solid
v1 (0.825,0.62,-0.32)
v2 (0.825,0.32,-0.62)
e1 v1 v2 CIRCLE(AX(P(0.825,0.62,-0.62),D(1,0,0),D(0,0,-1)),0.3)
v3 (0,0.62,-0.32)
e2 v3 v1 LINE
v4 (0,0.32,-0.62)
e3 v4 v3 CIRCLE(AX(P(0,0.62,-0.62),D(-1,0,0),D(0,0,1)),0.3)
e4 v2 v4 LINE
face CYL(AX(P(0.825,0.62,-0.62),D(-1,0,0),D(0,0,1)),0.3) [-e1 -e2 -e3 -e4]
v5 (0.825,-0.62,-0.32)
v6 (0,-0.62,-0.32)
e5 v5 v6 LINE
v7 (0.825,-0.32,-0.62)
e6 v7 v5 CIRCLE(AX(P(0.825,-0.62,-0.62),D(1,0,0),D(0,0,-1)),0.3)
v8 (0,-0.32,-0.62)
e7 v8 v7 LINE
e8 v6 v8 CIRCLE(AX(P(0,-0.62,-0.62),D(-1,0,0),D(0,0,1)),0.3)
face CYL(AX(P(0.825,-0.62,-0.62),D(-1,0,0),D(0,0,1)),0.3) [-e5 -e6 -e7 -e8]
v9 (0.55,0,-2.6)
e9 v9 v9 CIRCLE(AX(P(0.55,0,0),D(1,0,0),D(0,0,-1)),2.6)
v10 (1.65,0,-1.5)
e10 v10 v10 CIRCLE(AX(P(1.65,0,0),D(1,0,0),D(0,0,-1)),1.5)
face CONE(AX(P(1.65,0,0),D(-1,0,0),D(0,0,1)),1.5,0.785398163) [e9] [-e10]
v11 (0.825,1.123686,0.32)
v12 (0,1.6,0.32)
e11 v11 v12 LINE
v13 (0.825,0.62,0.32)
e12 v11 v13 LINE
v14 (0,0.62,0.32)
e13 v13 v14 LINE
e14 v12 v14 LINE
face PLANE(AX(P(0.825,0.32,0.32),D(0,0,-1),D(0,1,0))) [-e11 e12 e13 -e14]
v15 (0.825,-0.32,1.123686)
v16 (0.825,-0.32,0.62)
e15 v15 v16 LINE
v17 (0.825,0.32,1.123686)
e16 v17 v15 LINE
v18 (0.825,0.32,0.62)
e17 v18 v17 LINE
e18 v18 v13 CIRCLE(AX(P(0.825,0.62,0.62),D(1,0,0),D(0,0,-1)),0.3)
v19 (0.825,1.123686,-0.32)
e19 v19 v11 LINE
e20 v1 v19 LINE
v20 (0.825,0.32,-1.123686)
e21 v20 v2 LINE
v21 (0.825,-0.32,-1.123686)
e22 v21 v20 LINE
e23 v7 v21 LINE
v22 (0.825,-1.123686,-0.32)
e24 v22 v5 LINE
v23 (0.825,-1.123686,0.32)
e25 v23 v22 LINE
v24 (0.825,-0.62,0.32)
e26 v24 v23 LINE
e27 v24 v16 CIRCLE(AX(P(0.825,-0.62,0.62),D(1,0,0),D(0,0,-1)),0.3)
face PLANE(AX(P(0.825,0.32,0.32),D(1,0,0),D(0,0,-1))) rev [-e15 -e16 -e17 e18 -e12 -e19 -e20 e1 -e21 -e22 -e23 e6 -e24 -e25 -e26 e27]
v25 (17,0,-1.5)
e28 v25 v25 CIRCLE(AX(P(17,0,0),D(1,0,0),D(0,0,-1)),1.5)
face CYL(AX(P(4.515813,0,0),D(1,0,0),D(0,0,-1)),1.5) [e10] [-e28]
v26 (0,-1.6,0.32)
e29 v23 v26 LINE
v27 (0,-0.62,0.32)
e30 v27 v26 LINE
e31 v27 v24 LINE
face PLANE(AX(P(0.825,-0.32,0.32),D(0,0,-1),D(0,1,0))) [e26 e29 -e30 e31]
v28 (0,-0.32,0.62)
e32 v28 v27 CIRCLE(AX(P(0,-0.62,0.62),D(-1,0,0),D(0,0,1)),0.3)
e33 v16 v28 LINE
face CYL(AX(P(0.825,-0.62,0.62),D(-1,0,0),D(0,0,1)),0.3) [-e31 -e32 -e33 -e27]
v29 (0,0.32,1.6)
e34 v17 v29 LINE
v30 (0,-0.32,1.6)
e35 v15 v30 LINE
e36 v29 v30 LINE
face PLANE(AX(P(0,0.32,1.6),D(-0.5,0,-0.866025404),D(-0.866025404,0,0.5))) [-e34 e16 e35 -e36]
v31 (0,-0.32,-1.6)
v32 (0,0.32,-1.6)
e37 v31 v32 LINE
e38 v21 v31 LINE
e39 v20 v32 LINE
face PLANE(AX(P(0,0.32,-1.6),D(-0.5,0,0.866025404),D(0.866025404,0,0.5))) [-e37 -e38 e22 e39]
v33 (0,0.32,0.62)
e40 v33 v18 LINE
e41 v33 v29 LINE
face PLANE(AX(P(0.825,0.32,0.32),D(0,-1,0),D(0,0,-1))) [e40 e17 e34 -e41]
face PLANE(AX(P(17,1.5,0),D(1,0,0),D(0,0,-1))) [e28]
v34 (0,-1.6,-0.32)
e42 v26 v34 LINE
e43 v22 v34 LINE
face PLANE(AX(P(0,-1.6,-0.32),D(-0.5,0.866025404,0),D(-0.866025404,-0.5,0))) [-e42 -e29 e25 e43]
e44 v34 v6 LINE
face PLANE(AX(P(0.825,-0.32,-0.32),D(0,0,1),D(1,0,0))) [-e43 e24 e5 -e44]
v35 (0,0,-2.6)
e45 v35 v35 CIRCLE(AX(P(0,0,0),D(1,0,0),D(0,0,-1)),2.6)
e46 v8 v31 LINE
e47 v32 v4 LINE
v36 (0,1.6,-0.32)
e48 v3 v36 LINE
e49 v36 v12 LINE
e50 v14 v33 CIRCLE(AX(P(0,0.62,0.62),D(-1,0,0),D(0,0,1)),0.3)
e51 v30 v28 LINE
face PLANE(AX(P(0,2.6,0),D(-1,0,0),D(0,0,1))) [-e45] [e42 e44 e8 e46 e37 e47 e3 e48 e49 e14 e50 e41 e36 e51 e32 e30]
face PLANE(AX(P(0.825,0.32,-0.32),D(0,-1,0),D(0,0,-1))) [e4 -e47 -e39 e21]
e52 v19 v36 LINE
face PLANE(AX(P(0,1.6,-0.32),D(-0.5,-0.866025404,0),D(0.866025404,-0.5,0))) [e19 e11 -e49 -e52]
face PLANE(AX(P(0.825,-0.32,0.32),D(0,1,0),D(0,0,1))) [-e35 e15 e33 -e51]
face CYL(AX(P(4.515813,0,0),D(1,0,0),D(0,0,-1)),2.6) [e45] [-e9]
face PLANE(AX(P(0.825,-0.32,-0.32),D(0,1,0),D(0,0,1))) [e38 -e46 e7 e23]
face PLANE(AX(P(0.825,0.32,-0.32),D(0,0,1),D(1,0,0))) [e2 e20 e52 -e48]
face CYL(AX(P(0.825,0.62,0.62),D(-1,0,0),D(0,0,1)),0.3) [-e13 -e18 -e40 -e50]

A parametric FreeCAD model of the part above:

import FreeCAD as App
import Part
import Sketcher

V = App.Vector
Q = App.Units.Quantity


def edges_at(feature, points):
    """Names of the edges that pass closest to the given points."""
    edges = feature.Shape.Edges
    near = lambda p: min(range(len(edges)), key=lambda i: edges[i].distToShape(Part.Vertex(*p))[0])
    return sorted({f"Edge{near(p) + 1}" for p in points})


def faces_at(feature, points):
    """Names of the faces that lie closest to the given points."""
    faces = feature.Shape.Faces
    near = lambda p: min(range(len(faces)), key=lambda i: faces[i].distToShape(Part.Vertex(*p))[0])
    return sorted({f"Face{near(p) + 1}" for p in points})


def add_polygon(sketch, points):
    """Adds a closed chain of lines whose ends are joined by coincident constraints."""
    first, n = sketch.GeometryCount, len(points)
    for a, b in zip(points, points[1:] + points[:1]):
        sketch.addGeometry(Part.LineSegment(App.Vector(*a, 0), App.Vector(*b, 0)), False)
    for i in range(n):
        sketch.addConstraint(Sketcher.Constraint("Coincident", first + i, 2, first + (i + 1) % n, 1))

doc = App.newDocument("Part")
body = doc.addObject("PartDesign::Body", "Body")

# Sketch on XY plane
sketch1 = doc.addObject("Sketcher::SketchObject", "Sketch")
body.addObject(sketch1)
sketch1.AttachmentSupport = (doc.XY_Plane, [""])
sketch1.MapMode = "FlatFace"
add_polygon(sketch1, [(17, 1.5), (1.6, 1.5), (0.6, 2.6), (0, 2.6), (0, 0), (17, 0)])  # lines 0-5
sketch1.addConstraint([
    Sketcher.Constraint("Horizontal", 0),
    Sketcher.Constraint("Horizontal", 2),
    Sketcher.Constraint("Vertical", 3),
    Sketcher.Constraint("Horizontal", 4),
    Sketcher.Constraint("Vertical", 5),
    Sketcher.Constraint("Coincident", 3, 2, -1, 1),
    Sketcher.Constraint("DistanceX", 4, 1, 4, 2, Q("17 mm")),
    Sketcher.Constraint("Angle", 1, Q("135 deg")),
    Sketcher.Constraint("DistanceY", 3, 2, 3, 1, Q("2.6 mm")),
    Sketcher.Constraint("DistanceY", 5, 1, 5, 2, Q("1.5 mm")),
    Sketcher.Constraint("DistanceX", 0, 2, 0, 1, Q("15.35 mm")),
])
revolution = doc.addObject("PartDesign::Revolution", "Revolution")
body.addObject(revolution)
revolution.Profile = sketch1
revolution.ReferenceAxis = (sketch1, ["H_Axis"])
revolution.Angle = 360

# Sketch on YZ plane
sketch2 = doc.addObject("Sketcher::SketchObject", "Sketch001")
body.addObject(sketch2)
sketch2.AttachmentSupport = (doc.YZ_Plane, [""])
sketch2.MapMode = "FlatFace"
add_polygon(sketch2, [(0.3, -0.3), (1.6, -0.3), (1.6, 0.3), (0.3, 0.3), (0.3, 1.6), (-0.3, 1.6), (-0.3, 0.3), (-1.6, 0.3), (-1.6, -0.3), (-0.3, -0.3), (-0.3, -1.6), (0.3, -1.6)])  # lines 0-11
sketch2.addConstraint([
    Sketcher.Constraint("Horizontal", 0),
    Sketcher.Constraint("Vertical", 1),
    Sketcher.Constraint("Horizontal", 2),
    Sketcher.Constraint("Vertical", 3),
    Sketcher.Constraint("Horizontal", 4),
    Sketcher.Constraint("Vertical", 5),
    Sketcher.Constraint("Horizontal", 6),
    Sketcher.Constraint("Vertical", 7),
    Sketcher.Constraint("Horizontal", 8),
    Sketcher.Constraint("Vertical", 9),
    Sketcher.Constraint("Horizontal", 10),
    Sketcher.Constraint("Vertical", 11),
    Sketcher.Constraint("Symmetric", 0, 2, 6, 2, -1, 1),
    Sketcher.Constraint("Symmetric", 2, 2, 8, 2, -1, 1),
    Sketcher.Constraint("Symmetric", 4, 2, 10, 2, -1, 1),
    Sketcher.Constraint("Symmetric", 2, 2, 5, 2, -2),
    Sketcher.Constraint("Equal", 10, 1),
    Sketcher.Constraint("Equal", 8, 3),
    Sketcher.Constraint("DistanceX", 0, 1, 0, 2, Q("1.28 mm")),
    Sketcher.Constraint("DistanceX", 4, 2, 4, 1, Q("0.64 mm")),
])
pocket1 = doc.addObject("PartDesign::Pocket", "Pocket")
body.addObject(pocket1)
pocket1.Profile = sketch2
pocket1.Length = 0.825
pocket1.Reversed = True
doc.recompute()

draft = doc.addObject("PartDesign::Draft", "Draft")
body.addObject(draft)
draft.Base = (pocket1, faces_at(pocket1, [
    (0.412, 1.6, 0),
    (0.412, 0, 1.6),
    (0.412, -1.6, 0),
    (0.412, 0, -1.6),
]))
draft.NeutralPlane = (doc.YZ_Plane, [""])
draft.Angle = 30
draft.Reversed = True
doc.recompute()

fillet = doc.addObject("PartDesign::Fillet", "Fillet")
body.addObject(fillet)
fillet.Base = (draft, edges_at(draft, [
    (0.412, 0.32, 0.32),
    (0.412, -0.32, 0.32),
    (0.412, -0.32, -0.32),
    (0.412, 0.32, -0.32),
]))
fillet.Radius = 0.3

doc.recompute()
